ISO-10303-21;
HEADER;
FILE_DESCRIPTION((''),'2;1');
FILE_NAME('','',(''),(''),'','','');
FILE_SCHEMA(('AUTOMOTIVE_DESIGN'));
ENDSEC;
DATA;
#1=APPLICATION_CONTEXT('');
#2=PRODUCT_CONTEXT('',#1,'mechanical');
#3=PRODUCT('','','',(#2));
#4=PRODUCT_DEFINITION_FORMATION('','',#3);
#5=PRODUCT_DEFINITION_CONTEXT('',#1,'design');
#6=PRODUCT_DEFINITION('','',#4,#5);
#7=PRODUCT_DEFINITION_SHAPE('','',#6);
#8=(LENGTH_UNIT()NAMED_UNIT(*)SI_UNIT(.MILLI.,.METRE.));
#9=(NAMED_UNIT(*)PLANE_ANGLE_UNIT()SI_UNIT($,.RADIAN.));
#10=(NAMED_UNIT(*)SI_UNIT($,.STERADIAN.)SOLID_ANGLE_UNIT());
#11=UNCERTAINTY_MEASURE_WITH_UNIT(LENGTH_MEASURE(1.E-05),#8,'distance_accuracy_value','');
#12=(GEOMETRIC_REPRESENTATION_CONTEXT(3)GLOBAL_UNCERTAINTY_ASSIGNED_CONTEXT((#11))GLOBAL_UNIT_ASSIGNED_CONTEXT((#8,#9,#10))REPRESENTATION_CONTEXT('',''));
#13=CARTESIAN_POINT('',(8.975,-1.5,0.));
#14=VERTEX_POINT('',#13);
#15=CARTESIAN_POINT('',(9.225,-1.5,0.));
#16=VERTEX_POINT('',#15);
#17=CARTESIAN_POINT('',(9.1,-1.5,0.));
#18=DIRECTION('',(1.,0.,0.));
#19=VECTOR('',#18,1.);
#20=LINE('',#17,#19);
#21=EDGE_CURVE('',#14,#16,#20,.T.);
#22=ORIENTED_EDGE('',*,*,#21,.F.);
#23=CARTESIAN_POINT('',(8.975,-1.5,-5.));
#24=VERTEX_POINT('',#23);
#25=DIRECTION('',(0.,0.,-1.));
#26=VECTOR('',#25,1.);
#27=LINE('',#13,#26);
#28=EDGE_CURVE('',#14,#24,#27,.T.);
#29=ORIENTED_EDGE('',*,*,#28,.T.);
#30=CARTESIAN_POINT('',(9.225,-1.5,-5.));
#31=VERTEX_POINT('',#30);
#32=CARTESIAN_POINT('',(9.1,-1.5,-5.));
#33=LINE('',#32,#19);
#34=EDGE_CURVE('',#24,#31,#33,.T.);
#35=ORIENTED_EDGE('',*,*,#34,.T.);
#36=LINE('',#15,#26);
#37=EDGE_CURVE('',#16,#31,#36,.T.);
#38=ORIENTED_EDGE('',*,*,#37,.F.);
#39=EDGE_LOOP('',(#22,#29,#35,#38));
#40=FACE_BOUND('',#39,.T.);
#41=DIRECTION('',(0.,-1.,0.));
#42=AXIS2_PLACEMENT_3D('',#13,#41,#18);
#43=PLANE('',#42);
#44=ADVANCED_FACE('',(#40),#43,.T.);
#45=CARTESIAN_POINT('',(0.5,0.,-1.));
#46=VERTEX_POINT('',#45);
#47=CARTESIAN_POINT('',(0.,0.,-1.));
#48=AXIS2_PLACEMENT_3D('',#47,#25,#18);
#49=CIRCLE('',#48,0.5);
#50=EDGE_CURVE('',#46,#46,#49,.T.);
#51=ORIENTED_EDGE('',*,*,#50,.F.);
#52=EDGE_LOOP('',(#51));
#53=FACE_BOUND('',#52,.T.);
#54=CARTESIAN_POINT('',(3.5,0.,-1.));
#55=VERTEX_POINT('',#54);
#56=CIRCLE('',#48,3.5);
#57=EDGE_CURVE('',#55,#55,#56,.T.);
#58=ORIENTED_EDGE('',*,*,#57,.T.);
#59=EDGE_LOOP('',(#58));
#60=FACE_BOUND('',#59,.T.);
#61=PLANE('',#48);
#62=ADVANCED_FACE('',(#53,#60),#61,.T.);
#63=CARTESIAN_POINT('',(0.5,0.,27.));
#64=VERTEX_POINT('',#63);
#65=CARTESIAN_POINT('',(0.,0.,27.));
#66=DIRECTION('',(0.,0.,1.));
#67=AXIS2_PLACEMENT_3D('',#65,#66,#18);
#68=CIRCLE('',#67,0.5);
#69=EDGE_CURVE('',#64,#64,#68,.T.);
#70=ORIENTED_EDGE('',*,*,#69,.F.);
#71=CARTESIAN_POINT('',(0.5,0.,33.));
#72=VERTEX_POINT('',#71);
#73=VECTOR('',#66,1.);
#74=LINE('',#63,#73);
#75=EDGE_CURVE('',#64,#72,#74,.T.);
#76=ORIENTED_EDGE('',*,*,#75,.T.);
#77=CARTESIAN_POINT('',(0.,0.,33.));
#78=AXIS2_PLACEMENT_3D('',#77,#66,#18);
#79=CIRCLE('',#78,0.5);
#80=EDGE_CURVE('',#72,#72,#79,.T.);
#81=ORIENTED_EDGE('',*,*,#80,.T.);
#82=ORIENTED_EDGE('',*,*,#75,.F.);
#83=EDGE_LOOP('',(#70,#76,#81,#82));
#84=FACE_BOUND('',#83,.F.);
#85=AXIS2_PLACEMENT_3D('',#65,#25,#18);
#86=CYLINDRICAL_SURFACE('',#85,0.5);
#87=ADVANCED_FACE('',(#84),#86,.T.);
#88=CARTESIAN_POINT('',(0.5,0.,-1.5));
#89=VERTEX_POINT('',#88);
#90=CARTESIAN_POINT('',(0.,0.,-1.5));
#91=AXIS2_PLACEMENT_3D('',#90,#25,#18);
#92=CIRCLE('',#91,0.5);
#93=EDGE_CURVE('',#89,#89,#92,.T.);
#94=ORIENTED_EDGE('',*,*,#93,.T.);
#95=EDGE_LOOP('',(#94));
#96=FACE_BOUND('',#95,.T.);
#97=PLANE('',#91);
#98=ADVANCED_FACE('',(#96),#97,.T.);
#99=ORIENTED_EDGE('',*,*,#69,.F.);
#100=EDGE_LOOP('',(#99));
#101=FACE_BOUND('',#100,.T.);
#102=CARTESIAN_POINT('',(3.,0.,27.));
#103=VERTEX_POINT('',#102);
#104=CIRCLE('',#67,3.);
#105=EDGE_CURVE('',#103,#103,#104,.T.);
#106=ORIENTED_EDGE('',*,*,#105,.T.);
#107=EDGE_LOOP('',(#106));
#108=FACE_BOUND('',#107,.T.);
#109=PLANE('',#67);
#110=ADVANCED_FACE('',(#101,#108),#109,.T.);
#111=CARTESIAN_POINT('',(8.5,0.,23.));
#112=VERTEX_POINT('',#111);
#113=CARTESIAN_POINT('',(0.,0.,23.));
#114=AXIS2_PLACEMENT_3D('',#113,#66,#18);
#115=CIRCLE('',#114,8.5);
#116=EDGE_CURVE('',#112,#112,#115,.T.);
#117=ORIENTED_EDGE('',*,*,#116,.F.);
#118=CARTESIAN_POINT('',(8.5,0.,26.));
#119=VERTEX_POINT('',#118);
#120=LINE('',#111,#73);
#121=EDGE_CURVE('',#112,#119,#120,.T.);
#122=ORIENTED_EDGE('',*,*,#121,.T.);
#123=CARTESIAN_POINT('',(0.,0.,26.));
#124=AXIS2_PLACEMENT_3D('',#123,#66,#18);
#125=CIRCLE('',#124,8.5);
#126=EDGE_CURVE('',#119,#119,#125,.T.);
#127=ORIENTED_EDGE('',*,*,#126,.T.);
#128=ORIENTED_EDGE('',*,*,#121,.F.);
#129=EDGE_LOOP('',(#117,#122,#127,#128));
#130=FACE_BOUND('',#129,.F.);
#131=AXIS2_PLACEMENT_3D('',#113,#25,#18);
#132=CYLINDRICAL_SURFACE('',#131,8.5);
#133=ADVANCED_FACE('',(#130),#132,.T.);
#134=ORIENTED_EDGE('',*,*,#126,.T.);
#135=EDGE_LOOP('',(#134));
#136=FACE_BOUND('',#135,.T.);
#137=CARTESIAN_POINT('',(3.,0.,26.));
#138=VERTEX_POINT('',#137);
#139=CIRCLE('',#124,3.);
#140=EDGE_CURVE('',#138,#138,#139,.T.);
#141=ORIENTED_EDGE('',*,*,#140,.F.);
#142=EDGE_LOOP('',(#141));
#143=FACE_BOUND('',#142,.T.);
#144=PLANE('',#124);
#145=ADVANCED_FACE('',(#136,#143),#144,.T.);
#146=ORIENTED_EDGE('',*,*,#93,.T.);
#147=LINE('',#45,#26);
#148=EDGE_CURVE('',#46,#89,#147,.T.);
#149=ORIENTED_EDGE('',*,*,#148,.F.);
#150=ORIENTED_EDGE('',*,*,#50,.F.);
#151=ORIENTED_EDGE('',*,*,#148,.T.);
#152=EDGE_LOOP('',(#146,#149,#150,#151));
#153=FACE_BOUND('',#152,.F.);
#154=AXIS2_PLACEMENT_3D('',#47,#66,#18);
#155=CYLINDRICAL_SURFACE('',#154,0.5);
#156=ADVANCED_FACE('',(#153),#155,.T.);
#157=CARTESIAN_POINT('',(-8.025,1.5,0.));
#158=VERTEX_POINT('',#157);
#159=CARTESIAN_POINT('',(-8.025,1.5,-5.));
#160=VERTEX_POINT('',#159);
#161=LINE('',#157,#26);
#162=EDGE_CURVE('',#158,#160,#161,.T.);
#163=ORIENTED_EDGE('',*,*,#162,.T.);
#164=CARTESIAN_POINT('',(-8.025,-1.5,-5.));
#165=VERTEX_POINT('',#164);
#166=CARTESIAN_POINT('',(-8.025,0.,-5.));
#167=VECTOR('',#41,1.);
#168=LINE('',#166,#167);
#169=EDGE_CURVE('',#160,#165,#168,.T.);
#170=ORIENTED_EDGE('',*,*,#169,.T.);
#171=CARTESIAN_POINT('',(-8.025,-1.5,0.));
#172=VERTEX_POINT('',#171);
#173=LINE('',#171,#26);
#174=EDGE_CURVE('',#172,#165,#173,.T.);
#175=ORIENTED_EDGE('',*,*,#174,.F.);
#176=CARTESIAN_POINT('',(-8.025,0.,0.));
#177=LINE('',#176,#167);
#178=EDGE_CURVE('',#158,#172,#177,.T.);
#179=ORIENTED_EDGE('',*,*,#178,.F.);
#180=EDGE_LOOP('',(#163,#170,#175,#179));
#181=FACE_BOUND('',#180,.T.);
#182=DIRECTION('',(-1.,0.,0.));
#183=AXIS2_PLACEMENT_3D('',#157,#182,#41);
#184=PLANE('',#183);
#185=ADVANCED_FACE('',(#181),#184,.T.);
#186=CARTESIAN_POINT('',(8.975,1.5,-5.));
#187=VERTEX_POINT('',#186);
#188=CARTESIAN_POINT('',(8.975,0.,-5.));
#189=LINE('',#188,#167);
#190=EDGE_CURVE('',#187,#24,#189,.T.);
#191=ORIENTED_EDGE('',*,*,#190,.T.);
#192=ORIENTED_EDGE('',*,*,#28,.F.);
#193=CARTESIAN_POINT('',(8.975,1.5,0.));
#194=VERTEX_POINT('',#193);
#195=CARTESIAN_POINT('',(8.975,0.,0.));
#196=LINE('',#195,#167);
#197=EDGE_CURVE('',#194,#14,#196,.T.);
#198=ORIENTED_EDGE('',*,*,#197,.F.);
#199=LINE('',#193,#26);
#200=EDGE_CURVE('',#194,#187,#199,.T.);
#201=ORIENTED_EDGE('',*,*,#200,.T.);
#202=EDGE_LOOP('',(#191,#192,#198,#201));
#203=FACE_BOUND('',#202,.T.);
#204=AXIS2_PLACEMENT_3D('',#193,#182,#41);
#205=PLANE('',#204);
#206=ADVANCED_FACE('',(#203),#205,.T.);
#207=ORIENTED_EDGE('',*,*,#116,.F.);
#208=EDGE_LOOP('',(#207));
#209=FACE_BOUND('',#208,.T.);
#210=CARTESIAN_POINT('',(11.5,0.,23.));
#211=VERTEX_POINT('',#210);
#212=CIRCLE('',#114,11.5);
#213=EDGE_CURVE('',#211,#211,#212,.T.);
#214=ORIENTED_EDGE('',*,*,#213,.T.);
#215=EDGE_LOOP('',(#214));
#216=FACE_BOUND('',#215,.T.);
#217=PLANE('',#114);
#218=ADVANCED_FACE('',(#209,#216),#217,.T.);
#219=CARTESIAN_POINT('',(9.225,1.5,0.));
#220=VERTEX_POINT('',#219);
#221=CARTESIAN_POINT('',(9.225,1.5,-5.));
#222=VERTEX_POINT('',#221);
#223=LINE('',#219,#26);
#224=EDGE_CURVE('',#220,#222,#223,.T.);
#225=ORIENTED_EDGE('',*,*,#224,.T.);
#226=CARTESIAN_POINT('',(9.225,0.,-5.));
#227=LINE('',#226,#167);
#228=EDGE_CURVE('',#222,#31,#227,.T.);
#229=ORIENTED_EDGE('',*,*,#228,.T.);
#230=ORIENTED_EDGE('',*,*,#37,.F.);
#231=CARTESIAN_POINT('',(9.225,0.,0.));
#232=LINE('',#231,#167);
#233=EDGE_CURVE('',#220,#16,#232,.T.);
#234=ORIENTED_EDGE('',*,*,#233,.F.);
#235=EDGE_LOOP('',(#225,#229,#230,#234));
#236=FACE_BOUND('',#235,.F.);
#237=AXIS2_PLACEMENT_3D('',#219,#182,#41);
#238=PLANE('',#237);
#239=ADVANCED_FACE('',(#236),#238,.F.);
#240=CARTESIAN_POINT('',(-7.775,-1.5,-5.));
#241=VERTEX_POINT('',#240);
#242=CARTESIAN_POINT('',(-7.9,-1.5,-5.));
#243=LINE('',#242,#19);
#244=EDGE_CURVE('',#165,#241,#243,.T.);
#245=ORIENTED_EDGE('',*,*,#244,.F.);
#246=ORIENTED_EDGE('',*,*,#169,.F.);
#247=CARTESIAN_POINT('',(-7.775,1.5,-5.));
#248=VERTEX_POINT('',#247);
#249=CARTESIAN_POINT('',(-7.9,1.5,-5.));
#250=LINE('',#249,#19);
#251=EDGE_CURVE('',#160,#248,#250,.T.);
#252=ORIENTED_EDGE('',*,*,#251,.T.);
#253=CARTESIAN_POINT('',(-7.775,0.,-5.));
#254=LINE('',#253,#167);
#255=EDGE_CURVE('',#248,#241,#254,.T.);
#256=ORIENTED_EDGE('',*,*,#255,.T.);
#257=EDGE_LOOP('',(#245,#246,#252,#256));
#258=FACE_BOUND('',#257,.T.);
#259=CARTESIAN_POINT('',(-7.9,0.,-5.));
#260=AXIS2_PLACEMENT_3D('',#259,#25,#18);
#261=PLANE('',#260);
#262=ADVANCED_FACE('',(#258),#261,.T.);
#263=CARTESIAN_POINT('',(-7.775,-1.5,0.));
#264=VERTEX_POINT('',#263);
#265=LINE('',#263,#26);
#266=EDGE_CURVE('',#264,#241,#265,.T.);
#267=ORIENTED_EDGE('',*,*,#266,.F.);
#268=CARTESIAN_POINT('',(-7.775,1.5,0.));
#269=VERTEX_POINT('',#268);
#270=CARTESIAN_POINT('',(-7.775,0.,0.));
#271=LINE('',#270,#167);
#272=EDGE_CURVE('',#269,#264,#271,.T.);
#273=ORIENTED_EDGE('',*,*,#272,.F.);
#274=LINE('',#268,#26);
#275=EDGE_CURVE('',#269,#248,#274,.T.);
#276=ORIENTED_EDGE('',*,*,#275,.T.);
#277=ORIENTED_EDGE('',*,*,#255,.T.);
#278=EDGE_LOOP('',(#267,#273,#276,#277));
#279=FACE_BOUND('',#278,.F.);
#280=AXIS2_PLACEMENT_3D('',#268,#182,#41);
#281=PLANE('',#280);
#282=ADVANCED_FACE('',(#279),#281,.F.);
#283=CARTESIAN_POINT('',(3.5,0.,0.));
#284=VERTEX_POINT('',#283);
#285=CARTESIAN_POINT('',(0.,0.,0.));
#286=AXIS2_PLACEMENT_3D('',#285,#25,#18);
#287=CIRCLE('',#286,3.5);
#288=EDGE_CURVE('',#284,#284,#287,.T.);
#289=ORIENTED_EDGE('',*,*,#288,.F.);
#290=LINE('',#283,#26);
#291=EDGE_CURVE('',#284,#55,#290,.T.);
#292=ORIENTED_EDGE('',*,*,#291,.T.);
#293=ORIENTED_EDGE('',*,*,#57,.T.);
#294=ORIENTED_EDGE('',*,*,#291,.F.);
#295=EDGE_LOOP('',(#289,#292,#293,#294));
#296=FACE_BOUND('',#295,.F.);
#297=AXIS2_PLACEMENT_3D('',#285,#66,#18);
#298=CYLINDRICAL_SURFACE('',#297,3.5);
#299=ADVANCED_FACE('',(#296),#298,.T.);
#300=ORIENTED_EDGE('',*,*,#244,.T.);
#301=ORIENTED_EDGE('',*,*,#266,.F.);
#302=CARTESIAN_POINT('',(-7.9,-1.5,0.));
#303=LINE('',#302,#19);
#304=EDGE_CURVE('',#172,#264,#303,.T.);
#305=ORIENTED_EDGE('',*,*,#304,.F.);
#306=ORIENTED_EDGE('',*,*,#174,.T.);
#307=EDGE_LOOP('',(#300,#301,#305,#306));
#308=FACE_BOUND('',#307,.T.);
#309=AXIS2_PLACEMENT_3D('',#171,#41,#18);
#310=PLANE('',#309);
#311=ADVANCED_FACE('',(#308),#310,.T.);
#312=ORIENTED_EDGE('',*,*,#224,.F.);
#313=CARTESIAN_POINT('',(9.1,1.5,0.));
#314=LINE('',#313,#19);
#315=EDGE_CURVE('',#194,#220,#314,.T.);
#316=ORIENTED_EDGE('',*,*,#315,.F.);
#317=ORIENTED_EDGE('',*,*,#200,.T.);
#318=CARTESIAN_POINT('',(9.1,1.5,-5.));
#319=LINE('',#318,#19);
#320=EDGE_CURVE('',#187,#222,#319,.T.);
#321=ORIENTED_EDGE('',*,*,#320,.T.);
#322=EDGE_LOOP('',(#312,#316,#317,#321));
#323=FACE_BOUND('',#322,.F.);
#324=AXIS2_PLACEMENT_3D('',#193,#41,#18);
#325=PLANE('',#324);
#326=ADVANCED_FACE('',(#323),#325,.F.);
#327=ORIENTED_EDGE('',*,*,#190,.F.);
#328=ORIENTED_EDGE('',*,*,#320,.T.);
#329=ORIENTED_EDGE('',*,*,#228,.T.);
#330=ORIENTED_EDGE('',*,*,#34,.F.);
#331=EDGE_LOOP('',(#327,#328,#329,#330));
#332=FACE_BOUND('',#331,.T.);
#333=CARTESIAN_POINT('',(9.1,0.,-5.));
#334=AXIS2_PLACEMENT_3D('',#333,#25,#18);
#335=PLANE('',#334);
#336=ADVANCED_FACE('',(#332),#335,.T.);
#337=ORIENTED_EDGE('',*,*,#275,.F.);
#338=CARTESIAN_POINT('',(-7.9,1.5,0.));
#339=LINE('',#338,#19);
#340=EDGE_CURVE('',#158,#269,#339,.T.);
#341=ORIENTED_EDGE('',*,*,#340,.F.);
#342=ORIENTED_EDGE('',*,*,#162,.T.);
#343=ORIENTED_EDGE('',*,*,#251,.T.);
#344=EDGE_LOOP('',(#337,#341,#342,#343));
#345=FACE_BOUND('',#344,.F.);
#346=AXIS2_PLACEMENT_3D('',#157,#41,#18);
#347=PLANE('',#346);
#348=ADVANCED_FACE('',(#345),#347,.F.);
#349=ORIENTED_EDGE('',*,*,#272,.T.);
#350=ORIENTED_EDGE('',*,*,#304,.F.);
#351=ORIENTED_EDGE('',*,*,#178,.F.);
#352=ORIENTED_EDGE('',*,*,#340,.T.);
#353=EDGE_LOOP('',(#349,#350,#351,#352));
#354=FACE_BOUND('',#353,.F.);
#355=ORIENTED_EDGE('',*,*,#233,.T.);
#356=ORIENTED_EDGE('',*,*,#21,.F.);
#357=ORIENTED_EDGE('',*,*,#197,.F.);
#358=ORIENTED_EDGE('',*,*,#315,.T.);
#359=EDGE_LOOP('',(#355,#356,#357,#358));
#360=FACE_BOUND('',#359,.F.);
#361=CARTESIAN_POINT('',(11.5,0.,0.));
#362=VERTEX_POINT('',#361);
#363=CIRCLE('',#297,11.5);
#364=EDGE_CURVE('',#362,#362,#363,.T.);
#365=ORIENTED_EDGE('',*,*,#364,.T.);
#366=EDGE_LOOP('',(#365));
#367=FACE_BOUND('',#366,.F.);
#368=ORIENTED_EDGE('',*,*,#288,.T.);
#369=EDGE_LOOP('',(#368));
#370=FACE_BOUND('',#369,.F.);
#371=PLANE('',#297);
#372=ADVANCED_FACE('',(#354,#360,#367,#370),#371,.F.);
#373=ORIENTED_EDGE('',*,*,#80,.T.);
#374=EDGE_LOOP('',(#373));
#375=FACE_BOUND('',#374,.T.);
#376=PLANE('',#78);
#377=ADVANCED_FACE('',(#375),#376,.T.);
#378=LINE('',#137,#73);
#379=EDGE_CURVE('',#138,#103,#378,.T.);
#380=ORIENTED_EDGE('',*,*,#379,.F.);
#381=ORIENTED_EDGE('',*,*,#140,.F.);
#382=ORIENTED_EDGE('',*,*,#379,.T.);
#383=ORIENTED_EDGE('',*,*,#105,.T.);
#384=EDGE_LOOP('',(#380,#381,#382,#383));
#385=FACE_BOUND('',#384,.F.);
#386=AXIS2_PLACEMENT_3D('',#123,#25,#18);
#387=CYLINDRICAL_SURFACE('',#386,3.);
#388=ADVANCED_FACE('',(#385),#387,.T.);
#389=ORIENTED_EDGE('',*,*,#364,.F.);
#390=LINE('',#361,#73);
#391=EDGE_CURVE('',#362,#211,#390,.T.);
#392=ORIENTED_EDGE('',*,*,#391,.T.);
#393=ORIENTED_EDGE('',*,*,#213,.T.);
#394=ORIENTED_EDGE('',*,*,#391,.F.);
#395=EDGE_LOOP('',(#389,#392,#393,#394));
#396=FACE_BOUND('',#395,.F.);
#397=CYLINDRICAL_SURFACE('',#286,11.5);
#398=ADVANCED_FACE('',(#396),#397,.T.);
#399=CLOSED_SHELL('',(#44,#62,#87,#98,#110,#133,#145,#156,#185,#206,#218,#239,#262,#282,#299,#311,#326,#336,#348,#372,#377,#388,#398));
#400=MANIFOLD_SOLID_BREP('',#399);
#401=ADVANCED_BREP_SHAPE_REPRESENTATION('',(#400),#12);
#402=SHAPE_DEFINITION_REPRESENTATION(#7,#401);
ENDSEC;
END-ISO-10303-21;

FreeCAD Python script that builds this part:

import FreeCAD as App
import Part
import Sketcher
from FreeCAD import Vector
Q = App.Units.Quantity

doc = App.newDocument("Part")
body = doc.addObject("PartDesign::Body", "Body")

# Sketch on XY plane
sketch1 = body.newObject("Sketcher::SketchObject", "Sketch")
sketch1.AttachmentSupport = (doc.getObject("XY_Plane"), [""])
sketch1.MapMode = "FlatFace"
sketch1.addGeometry(Part.Circle(Vector(0, 0, 0), Vector(0, 0, 1), 12), False)
sketch1.addConstraint([
    Sketcher.Constraint("Coincident", 0, 3, -1, 1),
    Sketcher.Constraint("Diameter", 0, Q("23 mm")),
])
pad1 = body.newObject("PartDesign::Pad", "Pad")
pad1.Profile = sketch1
pad1.Length = 23

# Sketch on XY plane
sketch2 = body.newObject("Sketcher::SketchObject", "Sketch001")
sketch2.AttachmentSupport = (doc.getObject("XY_Plane"), [""])
sketch2.MapMode = "FlatFace"
sketch2.AttachmentOffset = App.Placement(Vector(0, 0, 23), App.Rotation())
sketch2.addGeometry(Part.Circle(Vector(0, 0, 0), Vector(0, 0, 1), 8), False)
sketch2.addConstraint([
    Sketcher.Constraint("Coincident", 0, 3, -1, 1),
    Sketcher.Constraint("Diameter", 0, Q("17 mm")),
])
pad2 = body.newObject("PartDesign::Pad", "Pad001")
pad2.Profile = sketch2
pad2.Length = 3

# Sketch on XY plane
sketch3 = body.newObject("Sketcher::SketchObject", "Sketch002")
sketch3.AttachmentSupport = (doc.getObject("XY_Plane"), [""])
sketch3.MapMode = "FlatFace"
sketch3.AttachmentOffset = App.Placement(Vector(0, 0, 26), App.Rotation())
sketch3.addGeometry(Part.Circle(Vector(0, 0, 0), Vector(0, 0, 1), 3), False)
sketch3.addConstraint([
    Sketcher.Constraint("Coincident", 0, 3, -1, 1),
    Sketcher.Constraint("Diameter", 0, Q("6 mm")),
])
pad3 = body.newObject("PartDesign::Pad", "Pad002")
pad3.Profile = sketch3
pad3.Length = 1

# Sketch on XY plane
sketch4 = body.newObject("Sketcher::SketchObject", "Sketch003")
sketch4.AttachmentSupport = (doc.getObject("XY_Plane"), [""])
sketch4.MapMode = "FlatFace"
sketch4.AttachmentOffset = App.Placement(Vector(0, 0, 27), App.Rotation())
sketch4.addGeometry(Part.Circle(Vector(0, 0, 0), Vector(0, 0, 1), 0.5), False)
sketch4.addConstraint([
    Sketcher.Constraint("Coincident", 0, 3, -1, 1),
    Sketcher.Constraint("Diameter", 0, Q("1 mm")),
])
pad4 = body.newObject("PartDesign::Pad", "Pad003")
pad4.Profile = sketch4
pad4.Length = 6

# Sketch on XY plane
sketch5 = body.newObject("Sketcher::SketchObject", "Sketch004")
sketch5.AttachmentSupport = (doc.getObject("XY_Plane"), [""])
sketch5.MapMode = "FlatFace"
sketch5.addGeometry(Part.Circle(Vector(0, 0, 0), Vector(0, 0, 1), 3.5), False)
sketch5.addConstraint([
    Sketcher.Constraint("Coincident", 0, 3, -1, 1),
    Sketcher.Constraint("Diameter", 0, Q("7 mm")),
])
pad5 = body.newObject("PartDesign::Pad", "Pad004")
pad5.Profile = sketch5
pad5.Length = 1
pad5.Reversed = True

# Sketch on XY plane
sketch6 = body.newObject("Sketcher::SketchObject", "Sketch005")
sketch6.AttachmentSupport = (doc.getObject("XY_Plane"), [""])
sketch6.MapMode = "FlatFace"
sketch6.AttachmentOffset = App.Placement(Vector(0, 0, -1), App.Rotation())
sketch6.addGeometry(Part.Circle(Vector(0, 0, 0), Vector(0, 0, 1), 0.5), False)
sketch6.addConstraint([
    Sketcher.Constraint("Coincident", 0, 3, -1, 1),
    Sketcher.Constraint("Diameter", 0, Q("1 mm")),
])
pad6 = body.newObject("PartDesign::Pad", "Pad005")
pad6.Profile = sketch6
pad6.Length = 0.5
pad6.Reversed = True

# Sketch on XY plane
sketch7 = body.newObject("Sketcher::SketchObject", "Sketch006")
sketch7.AttachmentSupport = (doc.getObject("XY_Plane"), [""])
sketch7.MapMode = "FlatFace"
sketch7.addGeometry([
    Part.LineSegment(Vector(-8.03, -1.5, 0), Vector(-8.03, 1.5, 0)),  # 0
    Part.LineSegment(Vector(-8.03, 1.5, 0), Vector(-7.78, 1.5, 0)),  # 1
    Part.LineSegment(Vector(-7.78, 1.5, 0), Vector(-7.78, -1.5, 0)),  # 2
    Part.LineSegment(Vector(-7.78, -1.5, 0), Vector(-8.03, -1.5, 0)),  # 3
    Part.LineSegment(Vector(8.97, -1.5, 0), Vector(8.97, 1.5, 0)),  # 4
    Part.LineSegment(Vector(8.97, 1.5, 0), Vector(9.22, 1.5, 0)),  # 5
    Part.LineSegment(Vector(9.22, 1.5, 0), Vector(9.22, -1.5, 0)),  # 6
    Part.LineSegment(Vector(9.22, -1.5, 0), Vector(8.97, -1.5, 0)),  # 7
], False)
sketch7.addConstraint([
    Sketcher.Constraint("Coincident", 0, 2, 1, 1),
    Sketcher.Constraint("Coincident", 1, 2, 2, 1),
    Sketcher.Constraint("Coincident", 2, 2, 3, 1),
    Sketcher.Constraint("Coincident", 3, 2, 0, 1),
    Sketcher.Constraint("Coincident", 4, 2, 5, 1),
    Sketcher.Constraint("Coincident", 5, 2, 6, 1),
    Sketcher.Constraint("Coincident", 6, 2, 7, 1),
    Sketcher.Constraint("Coincident", 7, 2, 4, 1),
    Sketcher.Constraint("Vertical", 0),
    Sketcher.Constraint("Horizontal", 1),
    Sketcher.Constraint("Vertical", 2),
    Sketcher.Constraint("Horizontal", 3),
    Sketcher.Constraint("Vertical", 4),
    Sketcher.Constraint("Horizontal", 5),
    Sketcher.Constraint("Vertical", 6),
    Sketcher.Constraint("Horizontal", 7),
    Sketcher.Constraint("Horizontal", 1, 2, 4, 2),
    Sketcher.Constraint("Horizontal", 3, 2, 6, 2),
    Sketcher.Constraint("Equal", 3, 5),
    Sketcher.Constraint("DistanceY", 0, 1, 0, 2, Q("3 mm")),
    Sketcher.Constraint("DistanceX", 0, 2, 4, 2, Q("17 mm")),
    Sketcher.Constraint("DistanceX", 1, 1, 1, 2, Q("0.25 mm")),
    Sketcher.Constraint("DistanceY", -1, 1, 0, 2, Q("1.5 mm")),
    Sketcher.Constraint("DistanceX", 0, 2, -1, 1, Q("8.025 mm")),
])
pad7 = body.newObject("PartDesign::Pad", "Pad006")
pad7.Profile = sketch7
pad7.Length = 5
pad7.Reversed = True

doc.recompute()
